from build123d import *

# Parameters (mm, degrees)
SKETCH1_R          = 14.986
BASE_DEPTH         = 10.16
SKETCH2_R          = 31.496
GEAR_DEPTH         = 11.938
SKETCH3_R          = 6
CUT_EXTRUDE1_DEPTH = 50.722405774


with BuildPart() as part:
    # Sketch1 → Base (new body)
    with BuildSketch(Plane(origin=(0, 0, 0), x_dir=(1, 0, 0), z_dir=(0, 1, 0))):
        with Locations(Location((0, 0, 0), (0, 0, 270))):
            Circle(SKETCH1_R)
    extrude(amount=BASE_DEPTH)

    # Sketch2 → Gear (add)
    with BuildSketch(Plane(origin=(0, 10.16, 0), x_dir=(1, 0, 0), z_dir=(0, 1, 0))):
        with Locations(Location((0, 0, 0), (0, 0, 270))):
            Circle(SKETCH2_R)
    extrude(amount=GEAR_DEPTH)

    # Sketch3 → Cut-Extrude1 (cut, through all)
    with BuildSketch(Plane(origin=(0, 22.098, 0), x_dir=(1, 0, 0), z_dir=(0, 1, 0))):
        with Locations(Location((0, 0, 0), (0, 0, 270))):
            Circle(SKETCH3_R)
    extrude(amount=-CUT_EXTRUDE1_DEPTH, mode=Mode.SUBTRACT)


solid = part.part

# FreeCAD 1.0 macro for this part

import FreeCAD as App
import Part
import Sketcher

V = App.Vector
Q = App.Units.Quantity

doc = App.newDocument("Part")
body = doc.addObject("PartDesign::Body", "Body")

# Sketch on XZ plane
sketch1 = body.newObject("Sketcher::SketchObject", "Sketch")
sketch1.AttachmentSupport = (doc.getObject("XZ_Plane"), [""])
sketch1.MapMode = "FlatFace"
sketch1.addGeometry(Part.Circle(V(0, 0, 0), V(0, 0, 1), 15), False)
sketch1.addConstraint([
    Sketcher.Constraint("Coincident", 0, 3, -1, 1),
    Sketcher.Constraint("Diameter", 0, Q("1.18 in")),
])
pad1 = body.newObject("PartDesign::Pad", "Pad")
pad1.Profile = sketch1
pad1.Length = Q("0.4 in")
pad1.Reversed = True

# Sketch on XZ plane
sketch2 = body.newObject("Sketcher::SketchObject", "Sketch001")
sketch2.AttachmentSupport = (doc.getObject("XZ_Plane"), [""])
sketch2.MapMode = "FlatFace"
sketch2.AttachmentOffset = App.Placement(V(0, 0, -0.4 * 25.4), App.Rotation())
sketch2.addGeometry(Part.Circle(V(0, 0, 0), V(0, 0, 1), 31), False)
sketch2.addConstraint([
    Sketcher.Constraint("Coincident", 0, 3, -1, 1),
    Sketcher.Constraint("Diameter", 0, Q("2.48 in")),
])
pad2 = body.newObject("PartDesign::Pad", "Pad001")
pad2.Profile = sketch2
pad2.Length = Q("0.47 in")
pad2.Reversed = True

# Sketch on XZ plane
sketch3 = body.newObject("Sketcher::SketchObject", "Sketch002")
sketch3.AttachmentSupport = (doc.getObject("XZ_Plane"), [""])
sketch3.MapMode = "FlatFace"
sketch3.AttachmentOffset = App.Placement(V(0, 0, -0.87 * 25.4), App.Rotation())
sketch3.addGeometry(Part.Circle(V(0, 0, 0), V(0, 0, 1), 6), False)
sketch3.addConstraint([
    Sketcher.Constraint("Coincident", 0, 3, -1, 1),
    Sketcher.Constraint("Diameter", 0, 12.0),
])
pocket1 = body.newObject("PartDesign::Pocket", "Pocket")
pocket1.Profile = sketch3
pocket1.Type = "ThroughAll"
pocket1.Reversed = True

doc.recompute()
